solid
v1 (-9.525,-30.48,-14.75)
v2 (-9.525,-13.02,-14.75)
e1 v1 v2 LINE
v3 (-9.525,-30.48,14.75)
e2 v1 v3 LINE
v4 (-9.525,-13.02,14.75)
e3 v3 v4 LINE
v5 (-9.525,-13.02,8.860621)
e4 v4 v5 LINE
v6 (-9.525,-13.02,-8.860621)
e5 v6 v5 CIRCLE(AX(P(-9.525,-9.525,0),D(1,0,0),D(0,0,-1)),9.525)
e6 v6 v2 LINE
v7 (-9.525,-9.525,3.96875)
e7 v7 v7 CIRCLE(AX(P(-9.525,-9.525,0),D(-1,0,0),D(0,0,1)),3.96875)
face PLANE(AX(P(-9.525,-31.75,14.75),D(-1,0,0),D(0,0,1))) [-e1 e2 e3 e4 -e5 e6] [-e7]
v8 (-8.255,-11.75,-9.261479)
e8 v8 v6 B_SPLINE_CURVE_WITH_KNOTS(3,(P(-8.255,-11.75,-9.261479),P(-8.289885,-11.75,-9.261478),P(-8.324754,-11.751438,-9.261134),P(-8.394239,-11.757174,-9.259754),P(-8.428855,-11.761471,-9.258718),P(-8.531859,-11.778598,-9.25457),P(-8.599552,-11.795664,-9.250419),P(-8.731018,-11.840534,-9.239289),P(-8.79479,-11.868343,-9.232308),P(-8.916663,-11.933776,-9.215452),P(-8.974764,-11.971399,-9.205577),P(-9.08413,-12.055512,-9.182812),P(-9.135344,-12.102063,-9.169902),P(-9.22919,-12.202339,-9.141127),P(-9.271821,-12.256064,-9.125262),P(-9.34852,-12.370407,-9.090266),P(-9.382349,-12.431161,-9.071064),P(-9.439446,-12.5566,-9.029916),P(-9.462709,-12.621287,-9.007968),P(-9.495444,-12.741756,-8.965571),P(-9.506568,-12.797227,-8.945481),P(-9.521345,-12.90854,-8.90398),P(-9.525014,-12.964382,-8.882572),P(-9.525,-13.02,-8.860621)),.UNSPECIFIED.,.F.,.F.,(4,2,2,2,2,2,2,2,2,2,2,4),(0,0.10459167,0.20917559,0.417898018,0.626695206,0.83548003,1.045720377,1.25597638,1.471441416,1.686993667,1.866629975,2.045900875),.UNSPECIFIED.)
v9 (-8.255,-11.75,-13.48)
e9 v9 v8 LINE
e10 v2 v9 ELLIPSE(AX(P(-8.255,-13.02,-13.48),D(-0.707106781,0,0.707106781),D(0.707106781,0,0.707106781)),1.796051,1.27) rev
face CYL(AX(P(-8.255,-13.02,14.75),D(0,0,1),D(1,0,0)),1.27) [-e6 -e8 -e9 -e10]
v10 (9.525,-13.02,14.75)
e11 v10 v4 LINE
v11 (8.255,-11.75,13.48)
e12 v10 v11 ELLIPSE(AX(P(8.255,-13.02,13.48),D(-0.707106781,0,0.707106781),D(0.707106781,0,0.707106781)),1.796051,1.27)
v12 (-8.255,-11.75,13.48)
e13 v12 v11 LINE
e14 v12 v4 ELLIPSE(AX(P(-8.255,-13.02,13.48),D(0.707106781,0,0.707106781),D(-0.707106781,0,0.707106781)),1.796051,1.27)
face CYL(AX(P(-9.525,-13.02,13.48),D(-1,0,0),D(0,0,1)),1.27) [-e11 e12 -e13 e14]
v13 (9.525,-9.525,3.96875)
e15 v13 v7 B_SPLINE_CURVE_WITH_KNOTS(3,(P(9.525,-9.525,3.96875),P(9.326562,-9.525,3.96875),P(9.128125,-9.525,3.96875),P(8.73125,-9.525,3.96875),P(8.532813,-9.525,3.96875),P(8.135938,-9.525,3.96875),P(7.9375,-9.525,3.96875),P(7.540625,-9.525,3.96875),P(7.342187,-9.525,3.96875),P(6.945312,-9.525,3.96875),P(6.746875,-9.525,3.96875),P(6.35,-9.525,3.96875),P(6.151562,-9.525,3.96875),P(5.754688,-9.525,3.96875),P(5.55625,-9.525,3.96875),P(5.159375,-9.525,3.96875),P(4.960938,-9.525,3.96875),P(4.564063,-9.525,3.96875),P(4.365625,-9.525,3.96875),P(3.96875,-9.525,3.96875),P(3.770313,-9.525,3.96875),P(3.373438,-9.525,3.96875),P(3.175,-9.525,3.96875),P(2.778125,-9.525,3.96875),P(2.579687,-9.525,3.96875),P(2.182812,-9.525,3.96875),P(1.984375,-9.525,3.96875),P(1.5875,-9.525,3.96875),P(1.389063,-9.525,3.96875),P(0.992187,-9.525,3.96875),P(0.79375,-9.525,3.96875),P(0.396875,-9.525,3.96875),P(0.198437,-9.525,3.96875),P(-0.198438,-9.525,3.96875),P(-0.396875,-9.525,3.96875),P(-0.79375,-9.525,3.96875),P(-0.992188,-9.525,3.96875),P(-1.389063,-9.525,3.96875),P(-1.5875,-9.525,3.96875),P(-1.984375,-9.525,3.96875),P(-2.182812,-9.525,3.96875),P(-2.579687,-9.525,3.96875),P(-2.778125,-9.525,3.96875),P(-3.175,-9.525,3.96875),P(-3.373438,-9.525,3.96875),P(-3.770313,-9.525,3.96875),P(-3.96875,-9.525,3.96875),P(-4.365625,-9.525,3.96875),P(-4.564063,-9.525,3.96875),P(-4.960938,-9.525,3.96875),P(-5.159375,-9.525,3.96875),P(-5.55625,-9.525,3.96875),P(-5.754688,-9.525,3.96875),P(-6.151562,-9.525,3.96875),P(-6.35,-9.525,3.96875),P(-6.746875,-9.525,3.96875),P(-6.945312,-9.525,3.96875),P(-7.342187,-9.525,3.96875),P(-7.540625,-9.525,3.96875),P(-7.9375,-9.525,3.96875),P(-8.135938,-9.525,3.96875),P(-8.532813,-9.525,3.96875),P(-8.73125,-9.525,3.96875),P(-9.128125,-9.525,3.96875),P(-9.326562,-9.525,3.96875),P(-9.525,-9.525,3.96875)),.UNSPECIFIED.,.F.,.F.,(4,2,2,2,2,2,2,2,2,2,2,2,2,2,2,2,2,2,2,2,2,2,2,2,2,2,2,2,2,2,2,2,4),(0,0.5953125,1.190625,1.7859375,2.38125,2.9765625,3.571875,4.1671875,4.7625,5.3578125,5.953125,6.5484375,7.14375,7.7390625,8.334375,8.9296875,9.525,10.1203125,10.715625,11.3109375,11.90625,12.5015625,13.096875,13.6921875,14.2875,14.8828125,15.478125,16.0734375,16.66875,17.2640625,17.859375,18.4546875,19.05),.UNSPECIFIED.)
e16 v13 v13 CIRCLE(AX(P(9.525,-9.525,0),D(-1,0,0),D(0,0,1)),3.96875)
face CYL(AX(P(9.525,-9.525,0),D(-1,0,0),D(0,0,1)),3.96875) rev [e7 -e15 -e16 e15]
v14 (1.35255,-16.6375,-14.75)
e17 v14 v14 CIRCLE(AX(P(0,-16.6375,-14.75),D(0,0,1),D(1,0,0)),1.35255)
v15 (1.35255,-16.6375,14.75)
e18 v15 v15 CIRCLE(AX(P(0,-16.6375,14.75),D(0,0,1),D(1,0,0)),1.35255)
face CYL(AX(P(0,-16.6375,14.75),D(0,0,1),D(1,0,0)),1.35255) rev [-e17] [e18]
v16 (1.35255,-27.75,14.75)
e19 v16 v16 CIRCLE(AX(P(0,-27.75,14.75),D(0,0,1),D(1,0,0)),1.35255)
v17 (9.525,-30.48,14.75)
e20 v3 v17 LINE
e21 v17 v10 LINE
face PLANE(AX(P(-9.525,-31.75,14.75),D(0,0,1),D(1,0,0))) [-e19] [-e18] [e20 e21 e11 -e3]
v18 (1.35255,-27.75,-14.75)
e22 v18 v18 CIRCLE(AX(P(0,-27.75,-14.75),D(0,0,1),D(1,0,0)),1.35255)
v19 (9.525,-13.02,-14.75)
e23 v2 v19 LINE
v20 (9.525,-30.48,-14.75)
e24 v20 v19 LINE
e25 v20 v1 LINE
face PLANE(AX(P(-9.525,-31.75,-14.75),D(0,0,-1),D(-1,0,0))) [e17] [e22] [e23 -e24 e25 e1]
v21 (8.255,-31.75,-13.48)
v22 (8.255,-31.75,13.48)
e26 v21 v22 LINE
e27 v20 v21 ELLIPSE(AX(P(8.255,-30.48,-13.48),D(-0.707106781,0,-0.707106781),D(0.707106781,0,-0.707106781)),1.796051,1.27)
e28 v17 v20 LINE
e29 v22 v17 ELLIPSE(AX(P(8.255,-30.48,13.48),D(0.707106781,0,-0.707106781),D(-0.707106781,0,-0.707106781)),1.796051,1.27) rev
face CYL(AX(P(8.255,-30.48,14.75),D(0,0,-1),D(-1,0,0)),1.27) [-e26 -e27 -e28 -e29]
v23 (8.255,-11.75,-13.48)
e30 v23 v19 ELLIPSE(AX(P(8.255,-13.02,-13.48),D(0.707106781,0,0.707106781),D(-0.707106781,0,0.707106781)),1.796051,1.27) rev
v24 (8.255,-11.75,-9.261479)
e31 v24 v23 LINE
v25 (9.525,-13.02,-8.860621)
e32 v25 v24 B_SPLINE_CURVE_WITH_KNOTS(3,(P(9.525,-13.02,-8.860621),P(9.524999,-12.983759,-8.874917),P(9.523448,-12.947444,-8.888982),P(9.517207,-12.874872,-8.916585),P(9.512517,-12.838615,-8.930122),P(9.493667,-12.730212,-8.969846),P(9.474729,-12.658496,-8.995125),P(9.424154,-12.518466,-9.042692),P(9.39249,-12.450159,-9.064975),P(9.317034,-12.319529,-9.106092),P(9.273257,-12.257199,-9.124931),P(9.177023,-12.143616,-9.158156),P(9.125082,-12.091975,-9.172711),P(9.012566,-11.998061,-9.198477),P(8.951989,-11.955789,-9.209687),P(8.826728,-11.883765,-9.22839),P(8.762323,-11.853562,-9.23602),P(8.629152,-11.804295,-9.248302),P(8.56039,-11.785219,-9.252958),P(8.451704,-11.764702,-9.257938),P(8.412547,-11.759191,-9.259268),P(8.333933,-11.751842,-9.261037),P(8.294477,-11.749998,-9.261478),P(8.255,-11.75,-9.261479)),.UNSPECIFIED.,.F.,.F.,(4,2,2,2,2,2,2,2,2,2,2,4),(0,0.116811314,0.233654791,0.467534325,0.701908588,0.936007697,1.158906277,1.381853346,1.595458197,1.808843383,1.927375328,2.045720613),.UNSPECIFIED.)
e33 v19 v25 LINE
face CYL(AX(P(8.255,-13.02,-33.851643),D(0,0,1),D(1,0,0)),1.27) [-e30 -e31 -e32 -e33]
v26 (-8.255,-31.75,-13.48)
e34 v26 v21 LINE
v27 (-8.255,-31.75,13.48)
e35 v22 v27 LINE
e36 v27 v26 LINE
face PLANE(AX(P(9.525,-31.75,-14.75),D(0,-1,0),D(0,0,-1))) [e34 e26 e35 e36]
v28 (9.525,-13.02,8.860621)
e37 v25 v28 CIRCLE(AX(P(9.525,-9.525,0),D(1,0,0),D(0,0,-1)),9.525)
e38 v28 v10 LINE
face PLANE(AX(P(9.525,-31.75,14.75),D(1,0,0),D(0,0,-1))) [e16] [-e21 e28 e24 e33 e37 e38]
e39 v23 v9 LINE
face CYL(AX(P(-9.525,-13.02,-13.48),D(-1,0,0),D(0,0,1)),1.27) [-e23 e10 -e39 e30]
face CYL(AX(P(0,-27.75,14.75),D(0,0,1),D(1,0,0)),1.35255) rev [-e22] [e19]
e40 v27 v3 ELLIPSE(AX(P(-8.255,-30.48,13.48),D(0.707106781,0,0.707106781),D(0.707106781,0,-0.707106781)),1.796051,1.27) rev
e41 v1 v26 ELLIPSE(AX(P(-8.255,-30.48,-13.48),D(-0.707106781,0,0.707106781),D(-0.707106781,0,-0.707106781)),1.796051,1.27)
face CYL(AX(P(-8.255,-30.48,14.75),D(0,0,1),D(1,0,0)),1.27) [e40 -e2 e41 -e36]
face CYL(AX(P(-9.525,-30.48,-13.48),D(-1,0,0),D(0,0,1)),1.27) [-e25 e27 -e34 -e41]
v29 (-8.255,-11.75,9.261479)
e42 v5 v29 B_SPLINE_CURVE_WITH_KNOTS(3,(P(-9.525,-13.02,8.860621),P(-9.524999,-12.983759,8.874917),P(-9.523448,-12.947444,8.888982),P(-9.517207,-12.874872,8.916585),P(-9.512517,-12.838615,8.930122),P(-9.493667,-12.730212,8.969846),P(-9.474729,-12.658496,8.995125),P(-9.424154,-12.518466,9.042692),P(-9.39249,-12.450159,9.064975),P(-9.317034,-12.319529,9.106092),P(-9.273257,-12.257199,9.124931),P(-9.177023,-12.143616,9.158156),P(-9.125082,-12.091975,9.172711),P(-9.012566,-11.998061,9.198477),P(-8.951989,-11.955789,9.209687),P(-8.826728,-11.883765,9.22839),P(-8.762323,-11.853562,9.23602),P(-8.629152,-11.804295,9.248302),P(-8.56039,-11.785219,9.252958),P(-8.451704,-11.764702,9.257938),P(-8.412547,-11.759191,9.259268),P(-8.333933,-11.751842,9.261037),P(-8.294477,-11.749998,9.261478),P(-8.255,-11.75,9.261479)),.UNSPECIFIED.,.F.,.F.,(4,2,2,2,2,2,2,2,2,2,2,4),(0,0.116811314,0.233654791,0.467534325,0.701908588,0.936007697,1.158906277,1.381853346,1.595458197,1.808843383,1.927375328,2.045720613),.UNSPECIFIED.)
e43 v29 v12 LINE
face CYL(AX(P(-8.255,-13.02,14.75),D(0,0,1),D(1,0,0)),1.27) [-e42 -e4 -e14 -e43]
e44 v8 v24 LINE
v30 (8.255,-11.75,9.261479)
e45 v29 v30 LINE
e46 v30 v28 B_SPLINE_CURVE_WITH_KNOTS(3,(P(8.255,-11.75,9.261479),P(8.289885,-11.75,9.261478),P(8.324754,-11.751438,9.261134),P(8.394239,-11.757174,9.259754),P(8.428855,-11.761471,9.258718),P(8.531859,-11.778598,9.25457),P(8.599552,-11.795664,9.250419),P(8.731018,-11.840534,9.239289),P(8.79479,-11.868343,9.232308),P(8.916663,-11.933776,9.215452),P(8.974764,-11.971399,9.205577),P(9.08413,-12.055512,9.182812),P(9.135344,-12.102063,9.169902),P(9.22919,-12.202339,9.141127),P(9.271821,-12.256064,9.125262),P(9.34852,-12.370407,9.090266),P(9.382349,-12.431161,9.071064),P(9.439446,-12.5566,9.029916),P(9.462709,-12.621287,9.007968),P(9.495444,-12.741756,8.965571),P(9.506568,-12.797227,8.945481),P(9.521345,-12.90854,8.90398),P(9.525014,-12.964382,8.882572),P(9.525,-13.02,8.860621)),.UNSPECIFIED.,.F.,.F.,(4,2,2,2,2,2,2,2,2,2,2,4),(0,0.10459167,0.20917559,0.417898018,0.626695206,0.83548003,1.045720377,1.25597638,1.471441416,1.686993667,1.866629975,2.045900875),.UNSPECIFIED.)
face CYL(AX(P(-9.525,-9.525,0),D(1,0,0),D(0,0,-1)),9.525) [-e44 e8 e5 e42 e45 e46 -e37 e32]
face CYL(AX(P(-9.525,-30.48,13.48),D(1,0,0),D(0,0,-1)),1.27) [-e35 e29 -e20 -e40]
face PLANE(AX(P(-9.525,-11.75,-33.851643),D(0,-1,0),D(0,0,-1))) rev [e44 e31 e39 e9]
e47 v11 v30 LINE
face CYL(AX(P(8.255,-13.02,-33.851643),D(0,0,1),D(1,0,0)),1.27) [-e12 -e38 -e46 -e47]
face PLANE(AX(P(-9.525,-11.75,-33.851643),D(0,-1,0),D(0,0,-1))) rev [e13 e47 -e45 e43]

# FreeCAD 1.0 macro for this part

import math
import FreeCAD as App
import Part
import Sketcher
Q = App.Units.Quantity


def edges_at(feature, points):
    """Names of the edges that pass closest to the given points."""
    edges = feature.Shape.Edges
    near = lambda p: min(range(len(edges)), key=lambda i: edges[i].distToShape(Part.Vertex(*p))[0])
    return sorted({f"Edge{near(p) + 1}" for p in points})


def add_polygon(sketch, points):
    """Adds a closed chain of lines whose ends are joined by coincident constraints."""
    first, n = sketch.GeometryCount, len(points)
    for a, b in zip(points, points[1:] + points[:1]):
        sketch.addGeometry(Part.LineSegment(App.Vector(*a, 0), App.Vector(*b, 0)), False)
    for i in range(n):
        sketch.addConstraint(Sketcher.Constraint("Coincident", first + i, 2, first + (i + 1) % n, 1))

doc = App.newDocument("Part")
body = doc.addObject("PartDesign::Body", "Body")

# Sketch on XZ plane
sketch1 = body.newObject("Sketcher::SketchObject", "Sketch")
sketch1.AttachmentSupport = (doc.getObject("XZ_Plane"), [""])
sketch1.MapMode = "FlatFace"
add_polygon(sketch1, [(-10, -15), (-10, 15), (10, 15), (10, -15)])  # lines 0-3
sketch1.addConstraint([
    Sketcher.Constraint("Vertical", 0),
    Sketcher.Constraint("Horizontal", 1),
    Sketcher.Constraint("Vertical", 2),
    Sketcher.Constraint("Horizontal", 3),
    Sketcher.Constraint("Symmetric", 0, 2, 2, 2, -1, 1),
    Sketcher.Constraint("DistanceX", 1, 1, 1, 2, Q("0.75 in")),
    Sketcher.Constraint("DistanceY", 0, 1, 0, 2, 29.5),
])
pad1 = body.newObject("PartDesign::Pad", "Pad")
pad1.Profile = sketch1
pad1.Length = Q("1.25 in")

# Sketch on YZ plane
sketch2 = body.newObject("Sketcher::SketchObject", "Sketch001")
sketch2.AttachmentSupport = (doc.getObject("YZ_Plane"), [""])
sketch2.MapMode = "FlatFace"
sketch2.AttachmentOffset = App.Placement(App.Vector(0, 0, -0.375 * 25.4), App.Rotation())
sketch2.addGeometry(Part.Circle(App.Vector(-9.5, 0, 0), App.Vector(0, 0, 1), 4), False)
sketch2.addConstraint([
    Sketcher.Constraint("PointOnObject", 0, 3, -1),
    Sketcher.Constraint("Diameter", 0, Q("0.3125 in")),
    Sketcher.Constraint("DistanceX", 0, 3, -1, 1, Q("0.375 in")),
])
pocket1 = body.newObject("PartDesign::Pocket", "Pocket")
pocket1.Profile = sketch2
pocket1.Type = "ThroughAll"
pocket1.Reversed = True

# Sketch on XY plane
sketch3 = body.newObject("Sketcher::SketchObject", "Sketch002")
sketch3.AttachmentSupport = (doc.getObject("XY_Plane"), [""])
sketch3.MapMode = "FlatFace"
sketch3.AttachmentOffset = App.Placement(App.Vector(0, 0, 14.75), App.Rotation())
sketch3.addGeometry([
    Part.Circle(App.Vector(0, -27.8, 0), App.Vector(0, 0, 1), 1.4),
    Part.Circle(App.Vector(0, -16.6, 0), App.Vector(0, 0, 1), 1.4),
], False)
sketch3.addConstraint([
    Sketcher.Constraint("Equal", 0, 1),
    Sketcher.Constraint("PointOnObject", 0, 3, -2),
    Sketcher.Constraint("PointOnObject", 1, 3, -2),
    Sketcher.Constraint("Diameter", 0, Q("0.1065 in")),
    Sketcher.Constraint("DistanceY", 0, 3, 1, 3, Q("0.4375 in")),
    Sketcher.Constraint("DistanceY", 0, 3, -1, 1, 27.75),
])
doc.recompute()
hole = body.newObject("PartDesign::Hole", "Hole")
hole.Profile = sketch3
hole.ThreadType = "None"
hole.Diameter = Q("0.1065 in")
hole.DepthType = "ThroughAll"

# Sketch on YZ plane
sketch4 = body.newObject("Sketcher::SketchObject", "Sketch003")
sketch4.AttachmentSupport = (doc.getObject("YZ_Plane"), [""])
sketch4.MapMode = "FlatFace"
sketch4.AttachmentOffset = App.Placement(App.Vector(0, 0, 0.375 * 25.4), App.Rotation())
sketch4.addGeometry([
    Part.LineSegment(App.Vector(0, 14.8, 0), App.Vector(-11.8, 14.8, 0)),  # 0
    Part.LineSegment(App.Vector(-11.8, 14.8, 0), App.Vector(-11.8, 9.3, 0)),  # 1
    Part.ArcOfCircle(Part.Circle(App.Vector(-9.5, 0, 0), App.Vector(0, 0, 1), 9.5), math.radians(0), math.radians(104)),  # 2
    Part.LineSegment(App.Vector(0, 0, 0), App.Vector(0, 14.8, 0)),  # 3
    Part.LineSegment(App.Vector(0, -14.8, 0), App.Vector(0, 0, 0)),  # 4
    Part.ArcOfCircle(Part.Circle(App.Vector(-9.5, 0, 0), App.Vector(0, 0, 1), 9.5), math.radians(-90), math.radians(0)),  # 5
    Part.ArcOfCircle(Part.Circle(App.Vector(-9.5, 0, 0), App.Vector(0, 0, 1), 9.5), math.radians(-103.51), math.radians(-90)),  # 6
    Part.LineSegment(App.Vector(-11.8, -9.3, 0), App.Vector(-11.8, -14.8, 0)),  # 7
    Part.LineSegment(App.Vector(-11.8, -14.8, 0), App.Vector(0, -14.8, 0)),  # 8
], False)
sketch4.addConstraint([
    Sketcher.Constraint("Coincident", 0, 2, 1, 1),
    Sketcher.Constraint("Coincident", 1, 2, 2, 2),
    Sketcher.Constraint("Tangent", 2, 1, 3, 1),
    Sketcher.Constraint("Coincident", 3, 2, 0, 1),
    Sketcher.Constraint("Tangent", 4, 2, 5, 2),
    Sketcher.Constraint("Tangent", 5, 1, 6, 2),
    Sketcher.Constraint("Coincident", 6, 1, 7, 1),
    Sketcher.Constraint("Coincident", 7, 2, 8, 1),
    Sketcher.Constraint("Coincident", 8, 2, 4, 1),
    Sketcher.Constraint("Horizontal", 0),
    Sketcher.Constraint("Vertical", 1),
    Sketcher.Constraint("Vertical", 3),
    Sketcher.Constraint("Vertical", 4),
    Sketcher.Constraint("Vertical", 7),
    Sketcher.Constraint("Horizontal", 8),
    Sketcher.Constraint("Coincident", 2, 1, -1, 1),
    Sketcher.Constraint("Coincident", 4, 2, -1, 1),
    Sketcher.Constraint("Coincident", 6, 3, 2, 3),
    Sketcher.Constraint("Symmetric", 0, 2, 7, 2, -1),
    Sketcher.Constraint("Vertical", 6, 3, 5, 1),
    Sketcher.Constraint("Radius", 2, Q("0.375 in")),
    Sketcher.Constraint("DistanceX", 0, 2, 0, 1, 11.75),
    Sketcher.Constraint("DistanceY", 3, 1, 3, 2, 14.75),
])
pocket2 = body.newObject("PartDesign::Pocket", "Pocket001")
pocket2.Profile = sketch4
pocket2.Type = "ThroughAll"
doc.recompute()

fillet = body.newObject("PartDesign::Fillet", "Fillet")
fillet.Base = (pocket2, edges_at(pocket2, [
    (-9.525, -31.75, 0),
    (0, -31.75, 14.75),
    (-9.525, -11.75, 12.006),
    (0, -11.75, 14.75),
    (9.525, -11.75, 12.006),
    (9.525, -31.75, 0),
    (-9.525, -11.75, -12.006),
    (0, -11.75, -14.75),
    (9.525, -11.75, -12.006),
    (0, -31.75, -14.75),
]))
fillet.Radius = Q("0.05 in")

doc.recompute()
